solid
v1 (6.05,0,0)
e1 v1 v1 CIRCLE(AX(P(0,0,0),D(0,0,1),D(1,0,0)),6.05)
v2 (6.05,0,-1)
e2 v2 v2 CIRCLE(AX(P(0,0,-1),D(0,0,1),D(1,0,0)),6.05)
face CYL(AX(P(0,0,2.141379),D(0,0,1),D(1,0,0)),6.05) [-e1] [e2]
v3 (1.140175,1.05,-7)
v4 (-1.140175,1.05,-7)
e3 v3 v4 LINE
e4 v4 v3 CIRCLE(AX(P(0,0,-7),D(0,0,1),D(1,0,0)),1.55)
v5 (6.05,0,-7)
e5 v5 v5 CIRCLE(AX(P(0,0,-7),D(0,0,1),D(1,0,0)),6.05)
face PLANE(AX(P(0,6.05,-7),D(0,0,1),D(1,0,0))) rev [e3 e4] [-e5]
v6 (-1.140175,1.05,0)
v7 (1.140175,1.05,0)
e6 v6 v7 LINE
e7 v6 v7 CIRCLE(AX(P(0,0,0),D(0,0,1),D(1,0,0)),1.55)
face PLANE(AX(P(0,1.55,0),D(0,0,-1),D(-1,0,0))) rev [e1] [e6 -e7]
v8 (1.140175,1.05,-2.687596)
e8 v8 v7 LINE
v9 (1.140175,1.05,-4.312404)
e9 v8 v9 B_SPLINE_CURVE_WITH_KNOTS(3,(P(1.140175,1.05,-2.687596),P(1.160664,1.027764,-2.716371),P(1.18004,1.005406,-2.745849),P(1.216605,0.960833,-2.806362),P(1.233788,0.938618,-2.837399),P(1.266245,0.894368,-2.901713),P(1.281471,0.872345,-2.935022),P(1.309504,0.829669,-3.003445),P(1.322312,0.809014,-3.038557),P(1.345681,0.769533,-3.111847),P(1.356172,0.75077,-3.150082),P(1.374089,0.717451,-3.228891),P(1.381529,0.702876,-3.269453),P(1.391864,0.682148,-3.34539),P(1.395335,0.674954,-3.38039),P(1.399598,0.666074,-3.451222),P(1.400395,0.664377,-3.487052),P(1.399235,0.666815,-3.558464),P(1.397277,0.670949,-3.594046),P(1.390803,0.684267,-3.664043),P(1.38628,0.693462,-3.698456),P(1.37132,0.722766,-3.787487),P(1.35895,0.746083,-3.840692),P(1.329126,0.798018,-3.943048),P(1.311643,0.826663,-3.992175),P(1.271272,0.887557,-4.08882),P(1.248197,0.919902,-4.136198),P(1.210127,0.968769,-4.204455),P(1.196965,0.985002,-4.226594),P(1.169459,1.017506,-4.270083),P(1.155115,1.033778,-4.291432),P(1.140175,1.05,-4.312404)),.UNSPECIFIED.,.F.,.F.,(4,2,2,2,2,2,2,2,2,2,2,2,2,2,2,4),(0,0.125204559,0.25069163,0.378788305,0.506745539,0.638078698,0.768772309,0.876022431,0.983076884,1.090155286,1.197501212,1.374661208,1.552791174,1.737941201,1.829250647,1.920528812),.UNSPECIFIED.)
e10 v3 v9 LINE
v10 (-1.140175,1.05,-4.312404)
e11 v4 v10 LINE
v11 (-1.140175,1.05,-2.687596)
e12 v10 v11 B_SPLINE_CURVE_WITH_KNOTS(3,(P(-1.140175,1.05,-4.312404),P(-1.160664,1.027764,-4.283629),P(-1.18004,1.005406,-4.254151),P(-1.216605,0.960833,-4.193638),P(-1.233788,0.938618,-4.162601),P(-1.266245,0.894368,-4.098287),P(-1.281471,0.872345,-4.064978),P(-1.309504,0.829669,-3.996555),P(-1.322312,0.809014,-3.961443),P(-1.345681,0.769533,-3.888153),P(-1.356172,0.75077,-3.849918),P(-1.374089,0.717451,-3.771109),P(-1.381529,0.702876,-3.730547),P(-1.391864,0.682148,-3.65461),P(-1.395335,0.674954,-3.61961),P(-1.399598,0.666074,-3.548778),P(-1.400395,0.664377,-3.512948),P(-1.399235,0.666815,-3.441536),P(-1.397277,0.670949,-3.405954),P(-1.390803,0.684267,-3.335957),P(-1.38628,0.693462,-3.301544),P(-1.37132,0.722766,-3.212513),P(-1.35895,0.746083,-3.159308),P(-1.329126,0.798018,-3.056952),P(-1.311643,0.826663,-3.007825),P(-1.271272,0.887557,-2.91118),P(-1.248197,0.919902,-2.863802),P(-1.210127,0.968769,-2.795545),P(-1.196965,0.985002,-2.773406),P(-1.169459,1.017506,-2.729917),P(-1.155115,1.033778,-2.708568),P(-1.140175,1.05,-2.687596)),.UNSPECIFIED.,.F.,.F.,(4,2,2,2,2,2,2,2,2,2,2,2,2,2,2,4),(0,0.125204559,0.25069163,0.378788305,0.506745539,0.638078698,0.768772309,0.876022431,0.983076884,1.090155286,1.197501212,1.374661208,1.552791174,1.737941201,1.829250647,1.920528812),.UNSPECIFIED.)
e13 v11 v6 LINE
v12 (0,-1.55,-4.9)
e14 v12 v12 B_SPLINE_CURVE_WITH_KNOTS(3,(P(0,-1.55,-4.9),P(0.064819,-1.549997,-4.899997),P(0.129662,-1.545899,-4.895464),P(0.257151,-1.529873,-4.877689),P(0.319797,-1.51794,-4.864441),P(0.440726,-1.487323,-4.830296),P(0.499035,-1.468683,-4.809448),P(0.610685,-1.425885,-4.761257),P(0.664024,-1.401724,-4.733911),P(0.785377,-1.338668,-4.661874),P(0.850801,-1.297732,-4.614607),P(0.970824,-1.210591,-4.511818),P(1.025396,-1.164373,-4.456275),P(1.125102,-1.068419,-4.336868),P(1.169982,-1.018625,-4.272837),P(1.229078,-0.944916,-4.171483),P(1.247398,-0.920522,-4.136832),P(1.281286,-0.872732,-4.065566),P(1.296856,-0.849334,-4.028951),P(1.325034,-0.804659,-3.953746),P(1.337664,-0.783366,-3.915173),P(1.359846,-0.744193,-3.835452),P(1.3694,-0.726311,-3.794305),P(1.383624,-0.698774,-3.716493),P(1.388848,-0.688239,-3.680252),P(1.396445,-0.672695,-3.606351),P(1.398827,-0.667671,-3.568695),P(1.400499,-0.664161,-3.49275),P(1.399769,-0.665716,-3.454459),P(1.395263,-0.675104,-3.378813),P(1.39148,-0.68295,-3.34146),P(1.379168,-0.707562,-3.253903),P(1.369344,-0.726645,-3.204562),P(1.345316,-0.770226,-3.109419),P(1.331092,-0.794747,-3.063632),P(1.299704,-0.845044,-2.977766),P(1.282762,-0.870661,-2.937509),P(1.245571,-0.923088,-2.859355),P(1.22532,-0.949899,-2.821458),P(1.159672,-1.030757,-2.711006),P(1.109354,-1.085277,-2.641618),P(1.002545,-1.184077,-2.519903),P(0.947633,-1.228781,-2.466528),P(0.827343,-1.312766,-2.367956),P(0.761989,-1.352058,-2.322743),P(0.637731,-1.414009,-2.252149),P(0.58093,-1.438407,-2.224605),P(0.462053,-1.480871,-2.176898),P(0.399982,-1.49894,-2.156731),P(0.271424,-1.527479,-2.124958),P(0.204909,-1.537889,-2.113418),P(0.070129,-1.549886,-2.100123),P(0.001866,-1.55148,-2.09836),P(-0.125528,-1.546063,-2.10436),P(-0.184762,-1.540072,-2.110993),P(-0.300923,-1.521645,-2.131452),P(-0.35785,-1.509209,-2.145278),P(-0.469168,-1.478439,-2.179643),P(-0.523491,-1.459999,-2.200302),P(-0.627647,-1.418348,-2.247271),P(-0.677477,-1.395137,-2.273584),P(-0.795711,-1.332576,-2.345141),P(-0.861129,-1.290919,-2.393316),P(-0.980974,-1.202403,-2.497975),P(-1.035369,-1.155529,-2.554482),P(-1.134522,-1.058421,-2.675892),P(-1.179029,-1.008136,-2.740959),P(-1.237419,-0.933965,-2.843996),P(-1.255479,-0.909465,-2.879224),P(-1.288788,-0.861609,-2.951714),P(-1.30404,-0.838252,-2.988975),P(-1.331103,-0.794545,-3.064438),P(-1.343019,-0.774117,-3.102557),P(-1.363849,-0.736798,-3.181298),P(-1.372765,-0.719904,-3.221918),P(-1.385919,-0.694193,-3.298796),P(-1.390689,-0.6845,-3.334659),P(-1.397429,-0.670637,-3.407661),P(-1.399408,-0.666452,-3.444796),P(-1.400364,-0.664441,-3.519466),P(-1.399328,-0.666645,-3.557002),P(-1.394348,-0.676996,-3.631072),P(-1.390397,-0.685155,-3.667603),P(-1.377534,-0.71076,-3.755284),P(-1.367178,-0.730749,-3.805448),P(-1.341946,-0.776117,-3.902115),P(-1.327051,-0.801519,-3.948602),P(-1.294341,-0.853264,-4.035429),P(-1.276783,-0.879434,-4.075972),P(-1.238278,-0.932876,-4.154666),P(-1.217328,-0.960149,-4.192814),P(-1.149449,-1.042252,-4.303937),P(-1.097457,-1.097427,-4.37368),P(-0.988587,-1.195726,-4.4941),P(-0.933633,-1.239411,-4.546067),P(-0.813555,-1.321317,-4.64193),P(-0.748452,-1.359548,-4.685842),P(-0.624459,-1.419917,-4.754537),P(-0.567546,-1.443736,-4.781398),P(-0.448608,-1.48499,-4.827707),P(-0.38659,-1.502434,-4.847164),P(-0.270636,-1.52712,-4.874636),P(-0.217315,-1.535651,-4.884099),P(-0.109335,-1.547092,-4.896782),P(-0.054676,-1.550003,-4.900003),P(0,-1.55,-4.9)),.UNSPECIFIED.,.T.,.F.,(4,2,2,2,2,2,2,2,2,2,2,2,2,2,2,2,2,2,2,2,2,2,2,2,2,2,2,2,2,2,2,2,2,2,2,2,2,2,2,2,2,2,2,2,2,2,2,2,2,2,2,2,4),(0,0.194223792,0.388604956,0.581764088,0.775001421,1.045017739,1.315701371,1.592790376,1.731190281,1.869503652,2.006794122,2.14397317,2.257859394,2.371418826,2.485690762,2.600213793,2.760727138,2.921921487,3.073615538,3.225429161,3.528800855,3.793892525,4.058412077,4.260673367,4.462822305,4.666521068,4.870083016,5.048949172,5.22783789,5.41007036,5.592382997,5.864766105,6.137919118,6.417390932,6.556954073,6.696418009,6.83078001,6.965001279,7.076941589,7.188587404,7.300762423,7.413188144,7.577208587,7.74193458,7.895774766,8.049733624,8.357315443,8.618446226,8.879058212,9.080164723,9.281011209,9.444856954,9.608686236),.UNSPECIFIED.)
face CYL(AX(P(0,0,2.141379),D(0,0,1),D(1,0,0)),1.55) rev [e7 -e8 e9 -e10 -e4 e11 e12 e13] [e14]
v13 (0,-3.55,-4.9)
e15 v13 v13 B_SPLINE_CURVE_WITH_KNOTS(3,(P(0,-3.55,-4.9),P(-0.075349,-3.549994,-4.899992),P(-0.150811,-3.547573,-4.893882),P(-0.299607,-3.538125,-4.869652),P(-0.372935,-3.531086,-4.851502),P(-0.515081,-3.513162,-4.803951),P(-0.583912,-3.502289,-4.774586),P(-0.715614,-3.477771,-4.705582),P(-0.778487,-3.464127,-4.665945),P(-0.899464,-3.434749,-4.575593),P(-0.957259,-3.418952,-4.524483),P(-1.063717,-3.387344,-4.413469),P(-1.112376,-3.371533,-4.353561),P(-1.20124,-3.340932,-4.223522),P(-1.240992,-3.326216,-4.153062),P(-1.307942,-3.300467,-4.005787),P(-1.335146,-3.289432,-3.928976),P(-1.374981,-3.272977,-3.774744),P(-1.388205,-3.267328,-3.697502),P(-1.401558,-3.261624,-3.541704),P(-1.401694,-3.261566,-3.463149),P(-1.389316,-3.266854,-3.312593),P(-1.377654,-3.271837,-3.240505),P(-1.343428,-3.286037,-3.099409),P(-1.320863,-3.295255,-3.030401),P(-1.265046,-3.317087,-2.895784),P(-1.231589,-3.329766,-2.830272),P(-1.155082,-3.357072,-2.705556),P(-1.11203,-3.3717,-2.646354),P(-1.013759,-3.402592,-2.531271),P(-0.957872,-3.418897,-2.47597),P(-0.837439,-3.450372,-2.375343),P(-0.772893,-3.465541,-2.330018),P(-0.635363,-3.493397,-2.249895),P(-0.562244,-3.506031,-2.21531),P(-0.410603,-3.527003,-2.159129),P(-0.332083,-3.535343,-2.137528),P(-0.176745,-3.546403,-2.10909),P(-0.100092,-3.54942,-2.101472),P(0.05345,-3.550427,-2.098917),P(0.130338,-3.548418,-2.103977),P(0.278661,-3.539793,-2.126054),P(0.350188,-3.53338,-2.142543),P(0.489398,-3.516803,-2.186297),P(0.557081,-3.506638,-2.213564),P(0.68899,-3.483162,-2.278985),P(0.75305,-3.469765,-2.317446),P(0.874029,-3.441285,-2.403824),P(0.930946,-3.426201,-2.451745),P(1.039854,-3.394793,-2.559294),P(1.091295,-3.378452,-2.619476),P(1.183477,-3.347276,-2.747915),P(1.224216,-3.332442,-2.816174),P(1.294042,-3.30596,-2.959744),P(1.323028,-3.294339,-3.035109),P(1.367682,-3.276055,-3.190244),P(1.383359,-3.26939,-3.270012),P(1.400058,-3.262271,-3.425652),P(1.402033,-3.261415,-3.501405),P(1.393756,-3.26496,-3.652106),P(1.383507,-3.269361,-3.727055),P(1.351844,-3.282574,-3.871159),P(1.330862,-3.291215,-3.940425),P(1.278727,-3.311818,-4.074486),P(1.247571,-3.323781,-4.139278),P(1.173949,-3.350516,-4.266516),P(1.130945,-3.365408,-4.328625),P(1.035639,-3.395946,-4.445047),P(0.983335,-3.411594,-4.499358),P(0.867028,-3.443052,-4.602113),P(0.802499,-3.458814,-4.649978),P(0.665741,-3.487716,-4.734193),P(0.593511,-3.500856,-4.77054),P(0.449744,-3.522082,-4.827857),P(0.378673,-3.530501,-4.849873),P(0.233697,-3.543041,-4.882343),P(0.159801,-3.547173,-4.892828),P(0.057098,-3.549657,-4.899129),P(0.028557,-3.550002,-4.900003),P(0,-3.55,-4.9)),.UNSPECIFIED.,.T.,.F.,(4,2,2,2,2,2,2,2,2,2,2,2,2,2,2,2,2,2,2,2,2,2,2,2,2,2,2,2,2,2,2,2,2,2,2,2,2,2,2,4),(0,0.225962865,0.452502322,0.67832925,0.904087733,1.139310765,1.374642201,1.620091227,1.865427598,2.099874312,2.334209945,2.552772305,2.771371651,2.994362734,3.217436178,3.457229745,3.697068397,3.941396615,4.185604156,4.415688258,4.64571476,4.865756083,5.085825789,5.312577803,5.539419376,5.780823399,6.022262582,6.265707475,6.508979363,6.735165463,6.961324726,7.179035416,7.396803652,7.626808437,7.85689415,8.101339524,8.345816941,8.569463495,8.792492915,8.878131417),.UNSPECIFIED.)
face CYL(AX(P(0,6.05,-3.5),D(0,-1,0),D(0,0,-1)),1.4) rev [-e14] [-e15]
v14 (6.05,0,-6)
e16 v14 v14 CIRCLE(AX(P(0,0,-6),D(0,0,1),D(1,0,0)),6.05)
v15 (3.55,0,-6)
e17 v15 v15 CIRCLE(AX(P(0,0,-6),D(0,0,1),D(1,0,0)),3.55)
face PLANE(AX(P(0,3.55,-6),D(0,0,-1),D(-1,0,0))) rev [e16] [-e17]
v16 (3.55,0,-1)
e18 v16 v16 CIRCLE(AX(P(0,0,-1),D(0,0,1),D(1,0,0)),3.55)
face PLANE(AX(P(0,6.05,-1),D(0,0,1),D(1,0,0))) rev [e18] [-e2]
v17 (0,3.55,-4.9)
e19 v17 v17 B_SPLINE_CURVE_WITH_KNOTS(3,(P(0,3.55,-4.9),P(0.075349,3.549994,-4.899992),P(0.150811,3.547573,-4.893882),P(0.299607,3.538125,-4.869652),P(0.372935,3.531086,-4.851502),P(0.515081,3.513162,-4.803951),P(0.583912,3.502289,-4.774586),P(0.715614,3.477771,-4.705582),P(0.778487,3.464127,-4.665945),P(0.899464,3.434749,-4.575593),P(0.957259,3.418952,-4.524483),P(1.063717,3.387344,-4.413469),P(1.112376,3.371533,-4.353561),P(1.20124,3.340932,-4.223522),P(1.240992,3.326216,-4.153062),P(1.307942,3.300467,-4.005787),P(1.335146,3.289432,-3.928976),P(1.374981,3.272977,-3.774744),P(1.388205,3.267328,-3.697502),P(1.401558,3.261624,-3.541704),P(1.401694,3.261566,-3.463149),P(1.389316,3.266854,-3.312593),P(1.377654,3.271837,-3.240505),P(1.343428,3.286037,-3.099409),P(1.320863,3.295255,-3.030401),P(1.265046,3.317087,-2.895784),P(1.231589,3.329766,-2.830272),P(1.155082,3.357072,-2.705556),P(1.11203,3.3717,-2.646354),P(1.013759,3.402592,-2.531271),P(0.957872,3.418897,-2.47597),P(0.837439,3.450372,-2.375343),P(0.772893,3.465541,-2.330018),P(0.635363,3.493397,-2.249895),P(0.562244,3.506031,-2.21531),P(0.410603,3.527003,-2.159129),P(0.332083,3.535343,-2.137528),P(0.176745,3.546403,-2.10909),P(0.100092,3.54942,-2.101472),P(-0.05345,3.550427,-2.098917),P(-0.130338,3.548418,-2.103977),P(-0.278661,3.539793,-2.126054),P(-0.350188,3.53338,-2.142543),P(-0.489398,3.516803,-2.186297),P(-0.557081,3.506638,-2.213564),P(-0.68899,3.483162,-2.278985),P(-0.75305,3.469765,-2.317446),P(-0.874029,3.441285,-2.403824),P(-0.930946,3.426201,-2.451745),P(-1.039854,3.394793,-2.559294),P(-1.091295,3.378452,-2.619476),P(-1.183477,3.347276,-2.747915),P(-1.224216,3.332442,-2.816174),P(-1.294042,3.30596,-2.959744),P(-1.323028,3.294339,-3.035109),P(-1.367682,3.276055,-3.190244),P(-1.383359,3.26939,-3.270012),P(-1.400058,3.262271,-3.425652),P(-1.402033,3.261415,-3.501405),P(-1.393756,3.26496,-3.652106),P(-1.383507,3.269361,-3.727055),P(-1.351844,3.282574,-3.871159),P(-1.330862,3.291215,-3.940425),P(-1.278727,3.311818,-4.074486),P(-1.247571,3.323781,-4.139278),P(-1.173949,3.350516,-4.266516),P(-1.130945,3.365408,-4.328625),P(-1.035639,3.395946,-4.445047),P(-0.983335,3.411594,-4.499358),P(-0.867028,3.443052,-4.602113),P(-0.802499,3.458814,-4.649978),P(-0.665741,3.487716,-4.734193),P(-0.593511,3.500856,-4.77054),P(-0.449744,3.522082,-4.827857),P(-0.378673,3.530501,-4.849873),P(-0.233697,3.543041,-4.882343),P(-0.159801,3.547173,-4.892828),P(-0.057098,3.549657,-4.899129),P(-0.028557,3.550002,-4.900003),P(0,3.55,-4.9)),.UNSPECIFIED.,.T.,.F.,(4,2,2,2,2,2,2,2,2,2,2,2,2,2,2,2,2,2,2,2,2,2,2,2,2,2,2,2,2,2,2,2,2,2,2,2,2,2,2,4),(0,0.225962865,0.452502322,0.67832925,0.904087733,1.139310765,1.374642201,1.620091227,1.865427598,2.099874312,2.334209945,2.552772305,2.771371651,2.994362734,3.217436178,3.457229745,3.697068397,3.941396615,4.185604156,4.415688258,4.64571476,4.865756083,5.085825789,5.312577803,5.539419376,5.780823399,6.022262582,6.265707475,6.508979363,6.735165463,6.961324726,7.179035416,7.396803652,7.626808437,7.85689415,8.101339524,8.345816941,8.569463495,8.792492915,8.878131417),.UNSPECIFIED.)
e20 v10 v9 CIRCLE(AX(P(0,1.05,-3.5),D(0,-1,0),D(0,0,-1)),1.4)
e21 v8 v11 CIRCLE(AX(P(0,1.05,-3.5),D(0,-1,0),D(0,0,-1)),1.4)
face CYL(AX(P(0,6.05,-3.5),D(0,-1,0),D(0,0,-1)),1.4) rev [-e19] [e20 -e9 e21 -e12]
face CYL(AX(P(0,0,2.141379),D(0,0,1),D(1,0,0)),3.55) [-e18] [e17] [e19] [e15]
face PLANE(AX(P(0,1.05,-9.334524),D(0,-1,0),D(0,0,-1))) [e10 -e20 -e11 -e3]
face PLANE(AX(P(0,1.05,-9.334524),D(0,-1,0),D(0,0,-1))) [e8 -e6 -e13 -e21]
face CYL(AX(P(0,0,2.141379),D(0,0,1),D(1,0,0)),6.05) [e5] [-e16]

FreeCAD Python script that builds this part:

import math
import FreeCAD as App
import Part
import Sketcher
from FreeCAD import Vector


def add_polygon(sketch, points):
    """Adds a closed chain of lines whose ends are joined by coincident constraints."""
    first, n = sketch.GeometryCount, len(points)
    for a, b in zip(points, points[1:] + points[:1]):
        sketch.addGeometry(Part.LineSegment(App.Vector(*a, 0), App.Vector(*b, 0)), False)
    for i in range(n):
        sketch.addConstraint(Sketcher.Constraint("Coincident", first + i, 2, first + (i + 1) % n, 1))

doc = App.newDocument("Part")
body = doc.addObject("PartDesign::Body", "Body")

# Sketch on YZ plane
sketch1 = body.newObject("Sketcher::SketchObject", "Sketch")
sketch1.AttachmentSupport = (doc.getObject("YZ_Plane"), [""])
sketch1.MapMode = "FlatFace"
add_polygon(sketch1, [(6, 0), (1.6, 0), (1.6, -7), (6, -7), (6, -6), (3.5, -6), (3.5, -1), (6, -1)])  # lines 0-7
sketch1.addConstraint(Sketcher.Constraint("Horizontal", 0))
sketch1.addConstraint(Sketcher.Constraint("Vertical", 1))
sketch1.addConstraint(Sketcher.Constraint("Horizontal", 2))
sketch1.addConstraint(Sketcher.Constraint("Vertical", 3))
sketch1.addConstraint(Sketcher.Constraint("Horizontal", 4))
sketch1.addConstraint(Sketcher.Constraint("Vertical", 5))
sketch1.addConstraint(Sketcher.Constraint("Horizontal", 6))
sketch1.addConstraint(Sketcher.Constraint("Vertical", 7))
sketch1.addConstraint(Sketcher.Constraint("PointOnObject", 0, 2, -1))
sketch1.addConstraint(Sketcher.Constraint("Vertical", 3, 2, 6, 2))
sketch1.addConstraint(Sketcher.Constraint("Equal", 3, 7))
sketch1.addConstraint(Sketcher.Constraint("DistanceY", 1, 2, 1, 1, 7.0))
sketch1.addConstraint(Sketcher.Constraint("DistanceY", 3, 1, 3, 2, 1.0))
sketch1.addConstraint(Sketcher.Constraint("DistanceX", 0, 2, 0, 1, 4.5))
sketch1.addConstraint(Sketcher.Constraint("DistanceX", 4, 2, 4, 1, 2.5))
sketch1.addConstraint(Sketcher.Constraint("DistanceX", -1, 1, 0, 2, 1.55))
revolution = body.newObject("PartDesign::Revolution", "Revolution")
revolution.Profile = sketch1
revolution.ReferenceAxis = (sketch1, ["V_Axis"])
revolution.Angle = 360

# Sketch on XY plane
sketch2 = body.newObject("Sketcher::SketchObject", "Sketch001")
sketch2.AttachmentSupport = (doc.getObject("XY_Plane"), [""])
sketch2.MapMode = "FlatFace"
sketch2.addGeometry(Part.ArcOfCircle(Part.Circle(Vector(0, 0, 0), Vector(0, 0, 1), 1.6), math.radians(43), math.radians(137)), False)
sketch2.addGeometry(Part.LineSegment(Vector(-1.1, 1.1, 0), Vector(1.1, 1.1, 0)), False)
sketch2.addConstraint(Sketcher.Constraint("Coincident", 0, 1, 1, 2))
sketch2.addConstraint(Sketcher.Constraint("Coincident", 1, 1, 0, 2))
sketch2.addConstraint(Sketcher.Constraint("Horizontal", 1))
sketch2.addConstraint(Sketcher.Constraint("Coincident", 0, 3, -1, 1))
sketch2.addConstraint(Sketcher.Constraint("Radius", 0, 1.55))
sketch2.addConstraint(Sketcher.Constraint("DistanceY", -1, 1, 0, 1, 1.05))
pad1 = body.newObject("PartDesign::Pad", "Pad")
pad1.Profile = sketch2
pad1.Length = 7
pad1.Reversed = True

# Sketch on XZ plane
sketch3 = body.newObject("Sketcher::SketchObject", "Sketch002")
sketch3.AttachmentSupport = (doc.getObject("XZ_Plane"), [""])
sketch3.MapMode = "FlatFace"
sketch3.AttachmentOffset = App.Placement(Vector(0, 0, -1.05), App.Rotation())
sketch3.addGeometry(Part.Circle(Vector(0, -3.5, 0), Vector(0, 0, 1), 1.4), False)
sketch3.addConstraint(Sketcher.Constraint("PointOnObject", 0, 3, -2))
sketch3.addConstraint(Sketcher.Constraint("Diameter", 0, 2.8))
sketch3.addConstraint(Sketcher.Constraint("DistanceY", 0, 3, -1, 1, 3.5))
pocket1 = body.newObject("PartDesign::Pocket", "Pocket")
pocket1.Profile = sketch3
pocket1.Type = "ThroughAll"
pocket1.Midplane = True

doc.recompute()
